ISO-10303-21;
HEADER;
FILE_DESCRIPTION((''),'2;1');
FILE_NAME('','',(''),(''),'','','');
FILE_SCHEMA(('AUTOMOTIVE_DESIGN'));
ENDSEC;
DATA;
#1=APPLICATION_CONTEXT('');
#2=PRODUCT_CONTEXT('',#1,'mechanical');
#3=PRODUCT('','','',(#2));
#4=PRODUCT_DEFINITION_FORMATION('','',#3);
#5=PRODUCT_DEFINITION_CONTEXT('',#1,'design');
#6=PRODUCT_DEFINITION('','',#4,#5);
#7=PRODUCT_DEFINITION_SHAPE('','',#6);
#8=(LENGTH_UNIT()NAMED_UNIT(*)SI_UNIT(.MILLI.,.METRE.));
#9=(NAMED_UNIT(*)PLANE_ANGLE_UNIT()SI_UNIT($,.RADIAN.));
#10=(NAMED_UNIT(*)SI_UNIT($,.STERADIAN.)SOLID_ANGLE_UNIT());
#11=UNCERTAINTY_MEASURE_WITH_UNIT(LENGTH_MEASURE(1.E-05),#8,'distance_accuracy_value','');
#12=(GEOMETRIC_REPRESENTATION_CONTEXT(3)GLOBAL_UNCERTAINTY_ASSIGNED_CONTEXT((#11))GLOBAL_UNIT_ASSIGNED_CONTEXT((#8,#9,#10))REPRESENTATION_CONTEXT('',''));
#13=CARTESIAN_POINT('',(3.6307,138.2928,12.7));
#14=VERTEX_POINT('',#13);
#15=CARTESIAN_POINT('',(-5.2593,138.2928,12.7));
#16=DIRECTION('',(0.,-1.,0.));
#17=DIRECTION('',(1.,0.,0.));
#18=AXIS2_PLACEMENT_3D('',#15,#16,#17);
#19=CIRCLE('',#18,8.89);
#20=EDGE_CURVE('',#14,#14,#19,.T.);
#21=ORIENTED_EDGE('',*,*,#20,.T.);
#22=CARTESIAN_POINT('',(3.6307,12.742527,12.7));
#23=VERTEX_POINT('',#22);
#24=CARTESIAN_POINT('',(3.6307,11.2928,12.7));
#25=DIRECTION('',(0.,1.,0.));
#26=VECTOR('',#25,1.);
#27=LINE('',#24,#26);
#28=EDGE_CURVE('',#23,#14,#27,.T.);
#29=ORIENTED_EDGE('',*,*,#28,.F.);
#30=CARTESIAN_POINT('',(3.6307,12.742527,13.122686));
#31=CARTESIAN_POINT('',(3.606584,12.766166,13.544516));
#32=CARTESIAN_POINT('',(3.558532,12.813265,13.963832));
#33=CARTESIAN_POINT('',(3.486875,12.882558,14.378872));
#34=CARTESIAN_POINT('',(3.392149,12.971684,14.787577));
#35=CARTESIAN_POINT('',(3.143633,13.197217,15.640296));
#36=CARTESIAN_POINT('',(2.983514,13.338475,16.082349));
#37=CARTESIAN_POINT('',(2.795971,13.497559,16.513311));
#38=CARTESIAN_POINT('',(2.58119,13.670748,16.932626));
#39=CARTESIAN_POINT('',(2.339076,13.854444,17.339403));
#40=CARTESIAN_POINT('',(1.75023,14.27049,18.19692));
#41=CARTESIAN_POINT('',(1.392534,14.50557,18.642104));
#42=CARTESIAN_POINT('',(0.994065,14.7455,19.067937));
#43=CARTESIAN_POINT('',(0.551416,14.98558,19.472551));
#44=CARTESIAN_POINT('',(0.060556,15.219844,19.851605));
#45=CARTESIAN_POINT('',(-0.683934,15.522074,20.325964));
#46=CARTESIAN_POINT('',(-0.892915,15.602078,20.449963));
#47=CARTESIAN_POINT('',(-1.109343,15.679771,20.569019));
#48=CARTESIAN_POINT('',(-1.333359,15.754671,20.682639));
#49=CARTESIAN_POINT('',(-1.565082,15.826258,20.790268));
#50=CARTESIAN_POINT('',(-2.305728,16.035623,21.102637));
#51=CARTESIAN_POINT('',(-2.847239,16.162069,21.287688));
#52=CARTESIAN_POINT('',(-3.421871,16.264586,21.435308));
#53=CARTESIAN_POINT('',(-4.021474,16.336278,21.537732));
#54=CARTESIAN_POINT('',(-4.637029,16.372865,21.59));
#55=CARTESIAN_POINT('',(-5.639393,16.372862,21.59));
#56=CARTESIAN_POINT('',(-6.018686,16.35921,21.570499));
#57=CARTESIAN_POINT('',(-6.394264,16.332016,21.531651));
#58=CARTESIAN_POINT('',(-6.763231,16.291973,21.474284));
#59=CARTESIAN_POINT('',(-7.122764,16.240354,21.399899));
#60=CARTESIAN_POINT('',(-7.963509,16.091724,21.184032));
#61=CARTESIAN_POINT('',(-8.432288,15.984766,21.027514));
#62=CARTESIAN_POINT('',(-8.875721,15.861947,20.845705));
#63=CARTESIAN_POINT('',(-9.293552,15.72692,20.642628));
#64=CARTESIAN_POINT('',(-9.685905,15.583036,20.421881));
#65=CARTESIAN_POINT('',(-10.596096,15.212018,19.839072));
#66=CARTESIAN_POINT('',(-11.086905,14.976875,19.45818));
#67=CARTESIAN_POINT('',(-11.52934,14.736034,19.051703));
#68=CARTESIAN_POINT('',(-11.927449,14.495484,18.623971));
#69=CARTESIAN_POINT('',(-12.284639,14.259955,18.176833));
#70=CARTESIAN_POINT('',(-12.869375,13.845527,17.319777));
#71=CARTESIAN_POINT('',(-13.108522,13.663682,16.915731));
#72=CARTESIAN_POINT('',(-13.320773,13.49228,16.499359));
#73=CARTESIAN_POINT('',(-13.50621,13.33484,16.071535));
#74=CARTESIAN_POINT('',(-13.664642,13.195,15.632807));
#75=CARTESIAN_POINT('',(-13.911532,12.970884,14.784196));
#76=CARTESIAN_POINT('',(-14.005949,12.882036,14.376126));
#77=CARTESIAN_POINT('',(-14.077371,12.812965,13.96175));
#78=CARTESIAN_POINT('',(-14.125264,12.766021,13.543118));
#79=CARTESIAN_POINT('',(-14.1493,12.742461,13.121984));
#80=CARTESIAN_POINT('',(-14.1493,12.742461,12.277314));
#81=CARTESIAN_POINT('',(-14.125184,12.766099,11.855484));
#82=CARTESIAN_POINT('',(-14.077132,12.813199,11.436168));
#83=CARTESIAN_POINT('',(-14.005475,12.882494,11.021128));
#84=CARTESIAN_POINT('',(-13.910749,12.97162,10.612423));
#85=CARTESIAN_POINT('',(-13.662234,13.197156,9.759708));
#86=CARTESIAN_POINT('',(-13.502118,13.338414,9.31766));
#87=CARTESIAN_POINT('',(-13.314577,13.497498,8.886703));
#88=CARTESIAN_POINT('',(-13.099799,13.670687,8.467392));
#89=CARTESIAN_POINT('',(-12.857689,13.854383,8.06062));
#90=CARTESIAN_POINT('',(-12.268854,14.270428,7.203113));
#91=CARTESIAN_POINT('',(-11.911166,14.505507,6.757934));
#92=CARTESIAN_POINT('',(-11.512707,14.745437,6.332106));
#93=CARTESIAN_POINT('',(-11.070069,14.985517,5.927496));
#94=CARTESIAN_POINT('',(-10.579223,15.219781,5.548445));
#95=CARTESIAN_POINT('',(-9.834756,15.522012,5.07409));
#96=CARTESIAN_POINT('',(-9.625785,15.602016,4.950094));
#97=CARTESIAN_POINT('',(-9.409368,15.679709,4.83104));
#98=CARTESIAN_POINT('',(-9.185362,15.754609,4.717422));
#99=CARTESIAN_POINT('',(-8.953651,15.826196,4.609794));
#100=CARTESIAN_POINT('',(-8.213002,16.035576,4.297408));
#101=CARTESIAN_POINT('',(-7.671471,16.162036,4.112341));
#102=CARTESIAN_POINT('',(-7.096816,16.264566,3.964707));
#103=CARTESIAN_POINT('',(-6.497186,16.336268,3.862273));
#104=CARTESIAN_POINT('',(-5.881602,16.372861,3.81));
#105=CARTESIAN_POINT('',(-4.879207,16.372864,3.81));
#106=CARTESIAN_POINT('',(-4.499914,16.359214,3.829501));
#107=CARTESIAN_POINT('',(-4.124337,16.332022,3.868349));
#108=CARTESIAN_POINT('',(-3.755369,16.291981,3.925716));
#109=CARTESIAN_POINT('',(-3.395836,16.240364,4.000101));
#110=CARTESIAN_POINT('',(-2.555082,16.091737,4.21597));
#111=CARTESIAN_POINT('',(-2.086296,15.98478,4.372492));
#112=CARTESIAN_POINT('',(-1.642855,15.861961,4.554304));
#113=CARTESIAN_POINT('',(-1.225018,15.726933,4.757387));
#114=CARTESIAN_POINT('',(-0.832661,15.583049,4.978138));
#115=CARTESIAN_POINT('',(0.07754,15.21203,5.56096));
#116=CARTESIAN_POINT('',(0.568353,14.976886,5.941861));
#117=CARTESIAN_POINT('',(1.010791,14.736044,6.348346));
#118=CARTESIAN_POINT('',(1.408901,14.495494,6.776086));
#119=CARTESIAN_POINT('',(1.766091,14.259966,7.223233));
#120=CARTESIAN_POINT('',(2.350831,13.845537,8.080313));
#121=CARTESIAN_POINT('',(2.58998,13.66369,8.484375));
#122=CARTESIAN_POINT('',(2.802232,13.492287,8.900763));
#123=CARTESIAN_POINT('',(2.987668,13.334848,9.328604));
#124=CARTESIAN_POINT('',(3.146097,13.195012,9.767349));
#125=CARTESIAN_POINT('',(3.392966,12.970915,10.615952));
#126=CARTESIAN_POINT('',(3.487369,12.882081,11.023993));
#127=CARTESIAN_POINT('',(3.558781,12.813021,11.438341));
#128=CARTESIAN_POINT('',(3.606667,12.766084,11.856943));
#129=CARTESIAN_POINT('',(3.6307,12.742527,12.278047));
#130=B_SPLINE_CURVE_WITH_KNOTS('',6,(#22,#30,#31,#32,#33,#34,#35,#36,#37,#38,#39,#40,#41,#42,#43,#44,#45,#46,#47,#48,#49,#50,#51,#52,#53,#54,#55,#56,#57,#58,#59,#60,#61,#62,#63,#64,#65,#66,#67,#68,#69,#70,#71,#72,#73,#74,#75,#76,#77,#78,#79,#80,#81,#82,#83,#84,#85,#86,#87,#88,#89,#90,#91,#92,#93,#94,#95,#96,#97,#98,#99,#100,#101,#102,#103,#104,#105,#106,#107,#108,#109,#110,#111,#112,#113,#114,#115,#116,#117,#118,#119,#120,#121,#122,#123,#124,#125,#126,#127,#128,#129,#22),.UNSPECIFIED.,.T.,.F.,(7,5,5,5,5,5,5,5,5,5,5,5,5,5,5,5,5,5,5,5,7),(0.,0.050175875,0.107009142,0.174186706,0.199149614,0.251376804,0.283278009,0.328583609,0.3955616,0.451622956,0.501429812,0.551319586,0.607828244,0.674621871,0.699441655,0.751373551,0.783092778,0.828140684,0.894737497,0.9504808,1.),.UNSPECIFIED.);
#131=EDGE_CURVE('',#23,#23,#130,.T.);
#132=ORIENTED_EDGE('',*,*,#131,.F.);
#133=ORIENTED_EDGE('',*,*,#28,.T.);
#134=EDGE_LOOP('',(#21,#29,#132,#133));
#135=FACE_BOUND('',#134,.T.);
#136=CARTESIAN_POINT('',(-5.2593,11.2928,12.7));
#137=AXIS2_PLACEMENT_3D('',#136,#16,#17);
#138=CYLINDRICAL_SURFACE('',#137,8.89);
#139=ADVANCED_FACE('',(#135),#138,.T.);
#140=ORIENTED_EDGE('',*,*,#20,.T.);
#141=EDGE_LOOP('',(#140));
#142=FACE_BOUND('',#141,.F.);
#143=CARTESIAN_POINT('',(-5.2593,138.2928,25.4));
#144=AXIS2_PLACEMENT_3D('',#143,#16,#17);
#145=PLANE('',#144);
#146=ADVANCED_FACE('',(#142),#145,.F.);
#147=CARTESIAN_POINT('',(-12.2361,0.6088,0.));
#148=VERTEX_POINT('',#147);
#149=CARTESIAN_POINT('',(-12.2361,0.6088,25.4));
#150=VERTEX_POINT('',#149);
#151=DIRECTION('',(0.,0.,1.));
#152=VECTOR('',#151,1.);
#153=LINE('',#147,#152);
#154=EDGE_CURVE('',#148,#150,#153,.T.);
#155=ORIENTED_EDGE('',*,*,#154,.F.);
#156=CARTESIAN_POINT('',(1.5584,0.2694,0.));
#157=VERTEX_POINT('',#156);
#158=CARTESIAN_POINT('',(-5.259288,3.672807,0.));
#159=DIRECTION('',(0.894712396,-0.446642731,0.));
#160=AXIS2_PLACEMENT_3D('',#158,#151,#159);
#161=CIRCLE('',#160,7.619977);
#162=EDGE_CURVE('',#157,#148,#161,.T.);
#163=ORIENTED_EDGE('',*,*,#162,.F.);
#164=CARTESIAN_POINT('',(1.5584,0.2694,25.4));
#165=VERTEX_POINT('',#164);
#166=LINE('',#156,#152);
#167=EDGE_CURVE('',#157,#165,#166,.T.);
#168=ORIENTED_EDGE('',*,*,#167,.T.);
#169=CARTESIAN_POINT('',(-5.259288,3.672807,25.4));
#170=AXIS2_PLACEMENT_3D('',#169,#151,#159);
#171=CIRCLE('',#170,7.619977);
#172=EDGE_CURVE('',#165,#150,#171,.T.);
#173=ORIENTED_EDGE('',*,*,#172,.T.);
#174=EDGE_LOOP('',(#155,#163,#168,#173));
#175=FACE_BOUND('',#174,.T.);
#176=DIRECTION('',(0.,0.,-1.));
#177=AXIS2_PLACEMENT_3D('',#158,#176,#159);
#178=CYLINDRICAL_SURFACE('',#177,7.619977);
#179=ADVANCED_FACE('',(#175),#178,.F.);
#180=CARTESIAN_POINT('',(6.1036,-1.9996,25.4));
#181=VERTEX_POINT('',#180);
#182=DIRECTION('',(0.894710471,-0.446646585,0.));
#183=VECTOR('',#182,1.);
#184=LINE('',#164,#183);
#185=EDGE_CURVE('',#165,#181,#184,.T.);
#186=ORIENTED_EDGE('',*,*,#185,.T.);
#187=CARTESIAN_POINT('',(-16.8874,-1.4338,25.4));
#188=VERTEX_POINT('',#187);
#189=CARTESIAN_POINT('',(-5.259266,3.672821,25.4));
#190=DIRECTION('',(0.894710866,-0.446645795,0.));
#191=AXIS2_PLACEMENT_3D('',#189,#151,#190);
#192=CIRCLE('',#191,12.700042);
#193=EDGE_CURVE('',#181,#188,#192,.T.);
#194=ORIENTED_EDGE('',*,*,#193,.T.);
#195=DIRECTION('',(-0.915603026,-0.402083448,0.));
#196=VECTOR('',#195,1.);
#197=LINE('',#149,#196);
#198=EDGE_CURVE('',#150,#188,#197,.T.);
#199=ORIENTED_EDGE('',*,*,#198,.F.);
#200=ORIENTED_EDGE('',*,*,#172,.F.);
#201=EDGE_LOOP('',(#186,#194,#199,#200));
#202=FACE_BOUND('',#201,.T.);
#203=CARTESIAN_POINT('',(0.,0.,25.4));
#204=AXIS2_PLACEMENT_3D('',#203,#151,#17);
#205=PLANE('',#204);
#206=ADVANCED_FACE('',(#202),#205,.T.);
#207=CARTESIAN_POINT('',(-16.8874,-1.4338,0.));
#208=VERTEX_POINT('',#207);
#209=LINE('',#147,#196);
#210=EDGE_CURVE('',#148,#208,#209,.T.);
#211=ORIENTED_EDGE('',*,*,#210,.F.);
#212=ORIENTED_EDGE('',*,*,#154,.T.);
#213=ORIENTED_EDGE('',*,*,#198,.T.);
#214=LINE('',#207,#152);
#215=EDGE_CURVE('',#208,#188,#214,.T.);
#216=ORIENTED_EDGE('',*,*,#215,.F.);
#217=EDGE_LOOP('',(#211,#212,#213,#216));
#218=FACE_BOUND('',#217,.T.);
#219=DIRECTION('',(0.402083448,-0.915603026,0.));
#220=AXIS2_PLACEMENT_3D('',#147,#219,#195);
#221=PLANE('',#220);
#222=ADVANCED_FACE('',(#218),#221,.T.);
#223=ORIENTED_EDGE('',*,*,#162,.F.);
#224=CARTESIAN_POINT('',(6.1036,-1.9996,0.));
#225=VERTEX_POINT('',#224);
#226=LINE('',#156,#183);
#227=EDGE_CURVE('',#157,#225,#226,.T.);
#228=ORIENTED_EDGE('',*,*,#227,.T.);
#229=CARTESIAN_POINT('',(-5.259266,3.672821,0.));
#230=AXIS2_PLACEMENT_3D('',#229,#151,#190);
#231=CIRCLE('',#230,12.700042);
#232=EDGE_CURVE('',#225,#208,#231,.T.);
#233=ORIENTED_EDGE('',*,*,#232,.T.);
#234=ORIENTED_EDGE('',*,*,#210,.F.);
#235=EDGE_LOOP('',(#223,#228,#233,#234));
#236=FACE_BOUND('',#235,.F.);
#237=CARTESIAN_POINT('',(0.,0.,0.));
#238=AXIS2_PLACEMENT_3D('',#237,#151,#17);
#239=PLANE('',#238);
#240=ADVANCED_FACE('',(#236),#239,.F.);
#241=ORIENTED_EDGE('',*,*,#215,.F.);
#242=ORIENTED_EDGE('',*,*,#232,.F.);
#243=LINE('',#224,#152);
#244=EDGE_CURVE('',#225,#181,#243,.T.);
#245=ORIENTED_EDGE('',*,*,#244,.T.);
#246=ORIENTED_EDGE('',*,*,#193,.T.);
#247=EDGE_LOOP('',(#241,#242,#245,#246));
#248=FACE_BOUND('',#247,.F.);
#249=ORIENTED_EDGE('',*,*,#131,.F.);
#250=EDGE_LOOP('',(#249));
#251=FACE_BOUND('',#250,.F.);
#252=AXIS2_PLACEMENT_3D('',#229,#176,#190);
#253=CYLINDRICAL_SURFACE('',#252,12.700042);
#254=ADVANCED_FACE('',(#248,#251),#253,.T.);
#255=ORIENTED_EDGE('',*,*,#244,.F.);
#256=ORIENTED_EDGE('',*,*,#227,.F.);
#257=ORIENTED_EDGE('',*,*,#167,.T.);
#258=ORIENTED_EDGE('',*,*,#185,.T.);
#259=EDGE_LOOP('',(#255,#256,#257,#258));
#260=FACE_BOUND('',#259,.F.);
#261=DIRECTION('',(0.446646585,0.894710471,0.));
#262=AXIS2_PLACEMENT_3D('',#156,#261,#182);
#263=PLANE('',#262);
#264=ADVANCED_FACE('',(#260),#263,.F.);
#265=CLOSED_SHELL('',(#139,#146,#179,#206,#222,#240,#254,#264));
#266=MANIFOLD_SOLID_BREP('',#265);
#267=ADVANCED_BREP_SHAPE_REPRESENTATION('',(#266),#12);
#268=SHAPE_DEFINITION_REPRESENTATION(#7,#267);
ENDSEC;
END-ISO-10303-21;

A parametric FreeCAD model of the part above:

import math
import FreeCAD as App
import Part
import Sketcher
Q = App.Units.Quantity

doc = App.newDocument("Part")
body = doc.addObject("PartDesign::Body", "Body")

sketch1 = body.newObject("Sketcher::SketchObject", "Sketch")
sketch1.AttachmentSupport = (doc.getObject("XY_Plane"), [""])
sketch1.MapMode = "FlatFace"
sketch1.addGeometry([
    Part.LineSegment(App.Vector(2, 0, 0), App.Vector(6, -2, 0)),
    Part.ArcOfCircle(Part.Circle(App.Vector(-5, 4, 0), App.Vector(0, 0, 1), 13), math.radians(-27), math.radians(204)),
    Part.LineSegment(App.Vector(-17, -1, 0), App.Vector(-12, 1, 0)),
    Part.ArcOfCircle(Part.Circle(App.Vector(-5, 4, 0), App.Vector(0, 0, 1), 8), math.radians(-27), math.radians(204)),
], False)
sketch1.addConstraint([
    Sketcher.Constraint("Coincident", 0, 2, 1, 1),
    Sketcher.Constraint("Coincident", 1, 2, 2, 1),
    Sketcher.Constraint("Coincident", 2, 2, 3, 2),
    Sketcher.Constraint("Coincident", 3, 1, 0, 1),
    Sketcher.Constraint("Coincident", 3, 3, 1, 3),
    Sketcher.Constraint("Radius", 1, Q("0.5 in")),
    Sketcher.Constraint("Radius", 3, Q("0.3 in")),
    Sketcher.Constraint("DistanceY", 3, 1, 1, 3, Q("0.134 in")),
    Sketcher.Constraint("DistanceY", -1, 1, 1, 3, Q("0.1446 in")),
    Sketcher.Constraint("DistanceX", -1, 1, 0, 2, Q("0.2403 in")),
    Sketcher.Constraint("DistanceX", 1, 2, 1, 3, Q("0.4578 in")),
    Sketcher.Constraint("DistanceY", 0, 2, 2, 2, Q("0.1027 in")),
    Sketcher.Constraint("DistanceX", 2, 2, 3, 1, Q("0.5431 in")),
])
pad1 = body.newObject("PartDesign::Pad", "Pad")
pad1.Profile = sketch1
pad1.Length = Q("1 in")

sketch2 = body.newObject("Sketcher::SketchObject", "Sketch001")
sketch2.AttachmentSupport = (doc.getObject("XZ_Plane"), [""])
sketch2.MapMode = "FlatFace"
sketch2.AttachmentOffset = App.Placement(App.Vector(0, 0, -0.4445984 * 25.4), App.Rotation())
sketch2.addGeometry(Part.Circle(App.Vector(-5, 13, 0), App.Vector(0, 0, 1), 9), False)
sketch2.addConstraint([
    Sketcher.Constraint("Diameter", 0, Q("0.7 in")),
    Sketcher.Constraint("DistanceY", -1, 1, 0, 3, Q("0.5 in")),
    Sketcher.Constraint("DistanceX", 0, 3, -1, 1, Q("5.2593 mm")),
])
pad2 = body.newObject("PartDesign::Pad", "Pad001")
pad2.Profile = sketch2
pad2.Length = Q("5 in")
pad2.Reversed = True

doc.recompute()
